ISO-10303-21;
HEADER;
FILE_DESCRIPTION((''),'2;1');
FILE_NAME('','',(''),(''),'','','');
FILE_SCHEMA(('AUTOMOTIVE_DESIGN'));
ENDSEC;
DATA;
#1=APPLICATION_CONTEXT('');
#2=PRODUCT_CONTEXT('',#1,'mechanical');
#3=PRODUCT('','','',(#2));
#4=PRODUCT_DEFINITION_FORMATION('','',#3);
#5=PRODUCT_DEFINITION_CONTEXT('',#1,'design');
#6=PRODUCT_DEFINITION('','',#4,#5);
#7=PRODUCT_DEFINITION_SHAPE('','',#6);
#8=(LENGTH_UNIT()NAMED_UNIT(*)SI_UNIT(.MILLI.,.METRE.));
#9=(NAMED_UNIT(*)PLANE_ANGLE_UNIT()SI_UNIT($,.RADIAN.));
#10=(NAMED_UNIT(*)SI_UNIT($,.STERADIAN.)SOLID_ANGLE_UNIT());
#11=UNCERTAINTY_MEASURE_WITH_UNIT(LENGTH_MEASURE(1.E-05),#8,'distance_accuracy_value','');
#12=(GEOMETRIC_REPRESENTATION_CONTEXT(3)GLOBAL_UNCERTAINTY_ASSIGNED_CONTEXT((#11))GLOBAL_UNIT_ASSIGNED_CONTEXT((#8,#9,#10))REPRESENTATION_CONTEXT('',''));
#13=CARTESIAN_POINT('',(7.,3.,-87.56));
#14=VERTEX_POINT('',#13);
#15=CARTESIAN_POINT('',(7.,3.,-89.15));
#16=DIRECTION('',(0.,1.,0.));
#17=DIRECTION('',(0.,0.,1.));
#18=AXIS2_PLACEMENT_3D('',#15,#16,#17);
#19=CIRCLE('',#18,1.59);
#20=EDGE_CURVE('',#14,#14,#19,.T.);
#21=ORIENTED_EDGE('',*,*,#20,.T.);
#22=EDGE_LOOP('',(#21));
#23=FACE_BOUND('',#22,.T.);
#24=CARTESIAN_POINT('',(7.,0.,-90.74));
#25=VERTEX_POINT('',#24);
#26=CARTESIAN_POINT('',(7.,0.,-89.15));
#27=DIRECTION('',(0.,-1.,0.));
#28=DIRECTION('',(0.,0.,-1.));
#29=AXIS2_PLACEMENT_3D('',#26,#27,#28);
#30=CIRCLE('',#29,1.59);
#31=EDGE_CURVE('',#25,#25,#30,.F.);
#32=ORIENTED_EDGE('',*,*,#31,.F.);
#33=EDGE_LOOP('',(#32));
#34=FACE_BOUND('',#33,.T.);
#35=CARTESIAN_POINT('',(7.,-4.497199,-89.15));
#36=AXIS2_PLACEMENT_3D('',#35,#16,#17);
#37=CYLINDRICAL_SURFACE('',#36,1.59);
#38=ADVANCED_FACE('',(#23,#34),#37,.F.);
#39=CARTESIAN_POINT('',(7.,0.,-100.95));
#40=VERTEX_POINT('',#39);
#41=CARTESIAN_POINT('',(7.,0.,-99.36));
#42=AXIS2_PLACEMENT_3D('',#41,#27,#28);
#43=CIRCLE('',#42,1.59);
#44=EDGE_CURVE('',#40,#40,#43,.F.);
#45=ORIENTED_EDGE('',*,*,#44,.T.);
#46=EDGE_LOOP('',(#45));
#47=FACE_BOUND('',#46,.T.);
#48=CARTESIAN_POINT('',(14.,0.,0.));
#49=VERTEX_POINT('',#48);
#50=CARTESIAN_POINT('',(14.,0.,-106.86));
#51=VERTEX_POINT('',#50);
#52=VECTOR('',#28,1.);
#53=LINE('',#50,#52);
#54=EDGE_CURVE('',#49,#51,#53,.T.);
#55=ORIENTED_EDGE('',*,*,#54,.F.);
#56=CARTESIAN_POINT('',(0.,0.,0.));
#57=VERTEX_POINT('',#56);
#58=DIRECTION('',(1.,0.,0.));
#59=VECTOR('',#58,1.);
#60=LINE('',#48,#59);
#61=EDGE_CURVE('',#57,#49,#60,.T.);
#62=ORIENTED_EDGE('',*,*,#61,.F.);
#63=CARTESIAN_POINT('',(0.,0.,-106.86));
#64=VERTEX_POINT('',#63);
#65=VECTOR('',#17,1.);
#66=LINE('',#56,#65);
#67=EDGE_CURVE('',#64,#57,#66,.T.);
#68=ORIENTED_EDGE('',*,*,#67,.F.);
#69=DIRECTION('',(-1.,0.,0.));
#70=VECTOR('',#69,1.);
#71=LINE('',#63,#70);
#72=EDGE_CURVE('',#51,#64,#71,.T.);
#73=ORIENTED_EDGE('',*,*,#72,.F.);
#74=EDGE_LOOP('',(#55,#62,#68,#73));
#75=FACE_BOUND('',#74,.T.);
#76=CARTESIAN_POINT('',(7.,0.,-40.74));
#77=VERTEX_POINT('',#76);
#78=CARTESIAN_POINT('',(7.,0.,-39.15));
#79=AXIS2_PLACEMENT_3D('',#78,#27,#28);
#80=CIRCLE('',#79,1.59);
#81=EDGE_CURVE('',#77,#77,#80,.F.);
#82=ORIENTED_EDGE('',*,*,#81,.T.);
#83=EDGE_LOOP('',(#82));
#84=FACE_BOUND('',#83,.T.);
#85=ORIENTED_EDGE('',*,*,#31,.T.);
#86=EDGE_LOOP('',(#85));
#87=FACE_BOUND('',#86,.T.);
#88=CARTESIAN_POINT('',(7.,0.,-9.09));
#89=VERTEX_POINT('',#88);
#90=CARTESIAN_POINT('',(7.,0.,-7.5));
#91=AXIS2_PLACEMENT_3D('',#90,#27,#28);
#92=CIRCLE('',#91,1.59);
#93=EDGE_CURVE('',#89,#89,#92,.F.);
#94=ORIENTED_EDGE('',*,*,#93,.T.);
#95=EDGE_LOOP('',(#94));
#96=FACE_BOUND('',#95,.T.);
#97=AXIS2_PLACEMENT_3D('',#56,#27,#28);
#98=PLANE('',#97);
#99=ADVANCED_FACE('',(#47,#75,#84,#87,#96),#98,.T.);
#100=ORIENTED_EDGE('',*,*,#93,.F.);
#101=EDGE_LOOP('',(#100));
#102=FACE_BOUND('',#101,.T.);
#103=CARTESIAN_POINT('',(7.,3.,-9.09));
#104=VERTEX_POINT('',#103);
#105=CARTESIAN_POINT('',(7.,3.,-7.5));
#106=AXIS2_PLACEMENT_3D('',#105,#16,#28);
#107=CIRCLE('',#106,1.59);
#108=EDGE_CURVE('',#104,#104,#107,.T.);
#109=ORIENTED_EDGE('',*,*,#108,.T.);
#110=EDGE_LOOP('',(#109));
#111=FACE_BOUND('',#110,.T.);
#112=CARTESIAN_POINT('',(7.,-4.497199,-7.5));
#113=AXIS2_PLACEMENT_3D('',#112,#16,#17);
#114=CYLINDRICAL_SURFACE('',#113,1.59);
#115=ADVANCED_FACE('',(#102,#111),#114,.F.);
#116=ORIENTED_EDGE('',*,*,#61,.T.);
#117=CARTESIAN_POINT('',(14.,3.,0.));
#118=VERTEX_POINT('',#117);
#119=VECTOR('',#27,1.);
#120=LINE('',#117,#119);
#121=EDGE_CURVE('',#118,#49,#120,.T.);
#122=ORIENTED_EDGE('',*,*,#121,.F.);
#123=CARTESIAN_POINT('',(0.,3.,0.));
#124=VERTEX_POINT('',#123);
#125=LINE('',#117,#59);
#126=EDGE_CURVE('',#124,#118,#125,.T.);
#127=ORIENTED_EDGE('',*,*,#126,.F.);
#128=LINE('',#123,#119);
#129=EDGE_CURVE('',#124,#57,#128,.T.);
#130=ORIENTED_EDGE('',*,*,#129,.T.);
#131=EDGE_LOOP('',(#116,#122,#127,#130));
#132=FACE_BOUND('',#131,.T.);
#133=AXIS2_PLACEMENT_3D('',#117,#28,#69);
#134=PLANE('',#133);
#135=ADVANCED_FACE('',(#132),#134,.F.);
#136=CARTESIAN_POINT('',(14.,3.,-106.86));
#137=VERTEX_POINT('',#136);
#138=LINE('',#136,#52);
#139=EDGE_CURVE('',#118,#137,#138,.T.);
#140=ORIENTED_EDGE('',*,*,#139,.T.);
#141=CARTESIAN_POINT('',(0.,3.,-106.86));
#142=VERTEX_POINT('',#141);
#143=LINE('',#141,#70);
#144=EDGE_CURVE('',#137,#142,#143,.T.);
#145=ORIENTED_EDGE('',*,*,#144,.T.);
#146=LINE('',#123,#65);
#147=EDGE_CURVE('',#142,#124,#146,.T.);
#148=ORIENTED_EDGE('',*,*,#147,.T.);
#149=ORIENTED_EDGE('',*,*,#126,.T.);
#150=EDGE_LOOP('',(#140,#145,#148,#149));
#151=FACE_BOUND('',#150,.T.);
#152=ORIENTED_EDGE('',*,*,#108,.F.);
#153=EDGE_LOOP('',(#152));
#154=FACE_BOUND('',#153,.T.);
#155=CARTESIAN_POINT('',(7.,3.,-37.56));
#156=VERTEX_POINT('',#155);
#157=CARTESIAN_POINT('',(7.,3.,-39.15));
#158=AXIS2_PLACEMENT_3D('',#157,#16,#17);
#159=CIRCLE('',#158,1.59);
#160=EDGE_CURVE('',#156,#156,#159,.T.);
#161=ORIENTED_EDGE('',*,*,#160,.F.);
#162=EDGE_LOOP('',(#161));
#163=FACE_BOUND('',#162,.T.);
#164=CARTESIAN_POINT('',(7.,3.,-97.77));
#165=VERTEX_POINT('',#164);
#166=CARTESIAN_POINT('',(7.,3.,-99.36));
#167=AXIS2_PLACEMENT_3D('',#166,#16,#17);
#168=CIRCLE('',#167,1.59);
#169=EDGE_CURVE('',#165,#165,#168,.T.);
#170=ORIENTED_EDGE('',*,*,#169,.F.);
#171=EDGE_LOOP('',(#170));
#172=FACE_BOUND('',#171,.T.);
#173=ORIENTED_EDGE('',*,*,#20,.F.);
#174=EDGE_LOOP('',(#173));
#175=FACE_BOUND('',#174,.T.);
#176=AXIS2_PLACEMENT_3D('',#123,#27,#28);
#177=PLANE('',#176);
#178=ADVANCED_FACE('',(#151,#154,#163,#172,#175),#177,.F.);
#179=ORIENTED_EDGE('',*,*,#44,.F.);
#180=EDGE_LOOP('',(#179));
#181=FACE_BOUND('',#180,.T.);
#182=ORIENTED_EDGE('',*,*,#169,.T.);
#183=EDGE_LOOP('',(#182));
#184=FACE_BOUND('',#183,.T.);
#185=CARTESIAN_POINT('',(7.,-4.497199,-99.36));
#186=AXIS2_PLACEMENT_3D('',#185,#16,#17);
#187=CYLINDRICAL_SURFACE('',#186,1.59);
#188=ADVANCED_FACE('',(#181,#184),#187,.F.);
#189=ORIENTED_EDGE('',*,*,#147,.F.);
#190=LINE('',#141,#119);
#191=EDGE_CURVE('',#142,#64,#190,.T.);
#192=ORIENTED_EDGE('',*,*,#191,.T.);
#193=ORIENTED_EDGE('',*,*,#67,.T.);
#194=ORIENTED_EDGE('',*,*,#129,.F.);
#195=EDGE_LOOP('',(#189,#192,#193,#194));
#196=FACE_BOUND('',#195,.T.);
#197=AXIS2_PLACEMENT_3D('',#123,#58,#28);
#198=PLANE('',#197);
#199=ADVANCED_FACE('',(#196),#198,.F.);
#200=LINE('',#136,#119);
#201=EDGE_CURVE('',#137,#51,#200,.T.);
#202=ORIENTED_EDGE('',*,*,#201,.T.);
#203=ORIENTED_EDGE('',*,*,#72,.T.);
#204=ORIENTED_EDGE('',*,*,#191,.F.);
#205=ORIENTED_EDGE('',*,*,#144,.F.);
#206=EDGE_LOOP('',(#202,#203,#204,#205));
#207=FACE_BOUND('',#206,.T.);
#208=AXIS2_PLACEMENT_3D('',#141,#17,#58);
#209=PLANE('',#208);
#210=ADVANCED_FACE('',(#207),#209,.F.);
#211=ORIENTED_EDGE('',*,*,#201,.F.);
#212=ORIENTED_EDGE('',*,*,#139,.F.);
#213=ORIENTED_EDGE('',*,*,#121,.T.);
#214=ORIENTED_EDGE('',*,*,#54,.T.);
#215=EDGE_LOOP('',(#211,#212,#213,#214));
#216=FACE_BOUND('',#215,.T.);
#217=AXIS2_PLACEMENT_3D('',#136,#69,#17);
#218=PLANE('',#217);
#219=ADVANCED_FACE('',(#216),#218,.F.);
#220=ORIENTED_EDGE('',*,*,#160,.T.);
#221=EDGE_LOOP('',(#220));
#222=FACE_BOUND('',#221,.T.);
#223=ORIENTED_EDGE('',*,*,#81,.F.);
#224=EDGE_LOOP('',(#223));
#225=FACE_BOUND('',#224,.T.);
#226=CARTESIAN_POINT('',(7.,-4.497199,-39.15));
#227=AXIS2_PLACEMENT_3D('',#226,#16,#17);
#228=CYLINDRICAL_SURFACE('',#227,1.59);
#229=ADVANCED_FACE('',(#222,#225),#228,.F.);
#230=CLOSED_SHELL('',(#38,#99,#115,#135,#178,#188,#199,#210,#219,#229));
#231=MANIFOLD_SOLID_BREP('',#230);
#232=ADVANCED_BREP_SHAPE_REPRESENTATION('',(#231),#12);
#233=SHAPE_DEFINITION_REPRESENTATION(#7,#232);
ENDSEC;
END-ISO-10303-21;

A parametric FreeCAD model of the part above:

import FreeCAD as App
import Part
import Sketcher

V = App.Vector
Q = App.Units.Quantity

doc = App.newDocument("Part")
body = doc.addObject("PartDesign::Body", "Body")

# Sketch on XZ plane
sketch1 = body.newObject("Sketcher::SketchObject", "Sketch")
sketch1.AttachmentSupport = (doc.getObject("XZ_Plane"), [""])
sketch1.MapMode = "FlatFace"
sketch1.addGeometry(Part.LineSegment(V(0, -107, 0), V(0, 0, 0)), False)
sketch1.addGeometry(Part.LineSegment(V(0, 0, 0), V(14, 0, 0)), False)
sketch1.addGeometry(Part.LineSegment(V(14, 0, 0), V(14, -107, 0)), False)
sketch1.addGeometry(Part.LineSegment(V(14, -107, 0), V(0, -107, 0)), False)
sketch1.addConstraint(Sketcher.Constraint("Coincident", 0, 2, 1, 1))
sketch1.addConstraint(Sketcher.Constraint("Coincident", 1, 2, 2, 1))
sketch1.addConstraint(Sketcher.Constraint("Coincident", 2, 2, 3, 1))
sketch1.addConstraint(Sketcher.Constraint("Coincident", 3, 2, 0, 1))
sketch1.addConstraint(Sketcher.Constraint("Vertical", 0))
sketch1.addConstraint(Sketcher.Constraint("Horizontal", 1))
sketch1.addConstraint(Sketcher.Constraint("Vertical", 2))
sketch1.addConstraint(Sketcher.Constraint("Horizontal", 3))
sketch1.addConstraint(Sketcher.Constraint("Coincident", 0, 2, -1, 1))
sketch1.addConstraint(Sketcher.Constraint("DistanceX", 1, 1, 1, 2, Q("14 mm")))
sketch1.addConstraint(Sketcher.Constraint("DistanceY", 0, 1, 0, 2, Q("106.86 mm")))
pad1 = body.newObject("PartDesign::Pad", "Pad")
pad1.Profile = sketch1
pad1.Length = 3
pad1.Reversed = True

# Sketch on XZ plane
sketch2 = body.newObject("Sketcher::SketchObject", "Sketch001")
sketch2.AttachmentSupport = (doc.getObject("XZ_Plane"), [""])
sketch2.MapMode = "FlatFace"
sketch2.AttachmentOffset = App.Placement(V(0, 0, -3), App.Rotation())
sketch2.addGeometry(Part.Circle(V(7, -99.4, 0), V(0, 0, 1), 1.6), False)
sketch2.addGeometry(Part.Circle(V(7, -7.5, 0), V(0, 0, 1), 1.6), False)
sketch2.addGeometry(Part.Circle(V(7, -89.2, 0), V(0, 0, 1), 1.6), False)
sketch2.addGeometry(Part.Circle(V(7, -39.1, 0), V(0, 0, 1), 1.6), False)
sketch2.addConstraint(Sketcher.Constraint("Equal", 0, 1))
sketch2.addConstraint(Sketcher.Constraint("Equal", 1, 2))
sketch2.addConstraint(Sketcher.Constraint("Equal", 2, 3))
sketch2.addConstraint(Sketcher.Constraint("Vertical", 0, 3, 1, 3))
sketch2.addConstraint(Sketcher.Constraint("Vertical", 1, 3, 2, 3))
sketch2.addConstraint(Sketcher.Constraint("Vertical", 2, 3, 3, 3))
sketch2.addConstraint(Sketcher.Constraint("Diameter", 0, Q("3.18 mm")))
sketch2.addConstraint(Sketcher.Constraint("DistanceX", -1, 1, 0, 3, Q("7 mm")))
sketch2.addConstraint(Sketcher.Constraint("DistanceY", 2, 3, 3, 3, Q("50 mm")))
sketch2.addConstraint(Sketcher.Constraint("DistanceY", 1, 3, -1, 1, Q("7.5 mm")))
sketch2.addConstraint(Sketcher.Constraint("DistanceY", 0, 3, -1, 1, Q("99.36 mm")))
sketch2.addConstraint(Sketcher.Constraint("DistanceY", 2, 3, -1, 1, Q("89.15 mm")))
pocket1 = body.newObject("PartDesign::Pocket", "Pocket")
pocket1.Profile = sketch2
pocket1.Length = 3
pocket1.Reversed = True

doc.recompute()
